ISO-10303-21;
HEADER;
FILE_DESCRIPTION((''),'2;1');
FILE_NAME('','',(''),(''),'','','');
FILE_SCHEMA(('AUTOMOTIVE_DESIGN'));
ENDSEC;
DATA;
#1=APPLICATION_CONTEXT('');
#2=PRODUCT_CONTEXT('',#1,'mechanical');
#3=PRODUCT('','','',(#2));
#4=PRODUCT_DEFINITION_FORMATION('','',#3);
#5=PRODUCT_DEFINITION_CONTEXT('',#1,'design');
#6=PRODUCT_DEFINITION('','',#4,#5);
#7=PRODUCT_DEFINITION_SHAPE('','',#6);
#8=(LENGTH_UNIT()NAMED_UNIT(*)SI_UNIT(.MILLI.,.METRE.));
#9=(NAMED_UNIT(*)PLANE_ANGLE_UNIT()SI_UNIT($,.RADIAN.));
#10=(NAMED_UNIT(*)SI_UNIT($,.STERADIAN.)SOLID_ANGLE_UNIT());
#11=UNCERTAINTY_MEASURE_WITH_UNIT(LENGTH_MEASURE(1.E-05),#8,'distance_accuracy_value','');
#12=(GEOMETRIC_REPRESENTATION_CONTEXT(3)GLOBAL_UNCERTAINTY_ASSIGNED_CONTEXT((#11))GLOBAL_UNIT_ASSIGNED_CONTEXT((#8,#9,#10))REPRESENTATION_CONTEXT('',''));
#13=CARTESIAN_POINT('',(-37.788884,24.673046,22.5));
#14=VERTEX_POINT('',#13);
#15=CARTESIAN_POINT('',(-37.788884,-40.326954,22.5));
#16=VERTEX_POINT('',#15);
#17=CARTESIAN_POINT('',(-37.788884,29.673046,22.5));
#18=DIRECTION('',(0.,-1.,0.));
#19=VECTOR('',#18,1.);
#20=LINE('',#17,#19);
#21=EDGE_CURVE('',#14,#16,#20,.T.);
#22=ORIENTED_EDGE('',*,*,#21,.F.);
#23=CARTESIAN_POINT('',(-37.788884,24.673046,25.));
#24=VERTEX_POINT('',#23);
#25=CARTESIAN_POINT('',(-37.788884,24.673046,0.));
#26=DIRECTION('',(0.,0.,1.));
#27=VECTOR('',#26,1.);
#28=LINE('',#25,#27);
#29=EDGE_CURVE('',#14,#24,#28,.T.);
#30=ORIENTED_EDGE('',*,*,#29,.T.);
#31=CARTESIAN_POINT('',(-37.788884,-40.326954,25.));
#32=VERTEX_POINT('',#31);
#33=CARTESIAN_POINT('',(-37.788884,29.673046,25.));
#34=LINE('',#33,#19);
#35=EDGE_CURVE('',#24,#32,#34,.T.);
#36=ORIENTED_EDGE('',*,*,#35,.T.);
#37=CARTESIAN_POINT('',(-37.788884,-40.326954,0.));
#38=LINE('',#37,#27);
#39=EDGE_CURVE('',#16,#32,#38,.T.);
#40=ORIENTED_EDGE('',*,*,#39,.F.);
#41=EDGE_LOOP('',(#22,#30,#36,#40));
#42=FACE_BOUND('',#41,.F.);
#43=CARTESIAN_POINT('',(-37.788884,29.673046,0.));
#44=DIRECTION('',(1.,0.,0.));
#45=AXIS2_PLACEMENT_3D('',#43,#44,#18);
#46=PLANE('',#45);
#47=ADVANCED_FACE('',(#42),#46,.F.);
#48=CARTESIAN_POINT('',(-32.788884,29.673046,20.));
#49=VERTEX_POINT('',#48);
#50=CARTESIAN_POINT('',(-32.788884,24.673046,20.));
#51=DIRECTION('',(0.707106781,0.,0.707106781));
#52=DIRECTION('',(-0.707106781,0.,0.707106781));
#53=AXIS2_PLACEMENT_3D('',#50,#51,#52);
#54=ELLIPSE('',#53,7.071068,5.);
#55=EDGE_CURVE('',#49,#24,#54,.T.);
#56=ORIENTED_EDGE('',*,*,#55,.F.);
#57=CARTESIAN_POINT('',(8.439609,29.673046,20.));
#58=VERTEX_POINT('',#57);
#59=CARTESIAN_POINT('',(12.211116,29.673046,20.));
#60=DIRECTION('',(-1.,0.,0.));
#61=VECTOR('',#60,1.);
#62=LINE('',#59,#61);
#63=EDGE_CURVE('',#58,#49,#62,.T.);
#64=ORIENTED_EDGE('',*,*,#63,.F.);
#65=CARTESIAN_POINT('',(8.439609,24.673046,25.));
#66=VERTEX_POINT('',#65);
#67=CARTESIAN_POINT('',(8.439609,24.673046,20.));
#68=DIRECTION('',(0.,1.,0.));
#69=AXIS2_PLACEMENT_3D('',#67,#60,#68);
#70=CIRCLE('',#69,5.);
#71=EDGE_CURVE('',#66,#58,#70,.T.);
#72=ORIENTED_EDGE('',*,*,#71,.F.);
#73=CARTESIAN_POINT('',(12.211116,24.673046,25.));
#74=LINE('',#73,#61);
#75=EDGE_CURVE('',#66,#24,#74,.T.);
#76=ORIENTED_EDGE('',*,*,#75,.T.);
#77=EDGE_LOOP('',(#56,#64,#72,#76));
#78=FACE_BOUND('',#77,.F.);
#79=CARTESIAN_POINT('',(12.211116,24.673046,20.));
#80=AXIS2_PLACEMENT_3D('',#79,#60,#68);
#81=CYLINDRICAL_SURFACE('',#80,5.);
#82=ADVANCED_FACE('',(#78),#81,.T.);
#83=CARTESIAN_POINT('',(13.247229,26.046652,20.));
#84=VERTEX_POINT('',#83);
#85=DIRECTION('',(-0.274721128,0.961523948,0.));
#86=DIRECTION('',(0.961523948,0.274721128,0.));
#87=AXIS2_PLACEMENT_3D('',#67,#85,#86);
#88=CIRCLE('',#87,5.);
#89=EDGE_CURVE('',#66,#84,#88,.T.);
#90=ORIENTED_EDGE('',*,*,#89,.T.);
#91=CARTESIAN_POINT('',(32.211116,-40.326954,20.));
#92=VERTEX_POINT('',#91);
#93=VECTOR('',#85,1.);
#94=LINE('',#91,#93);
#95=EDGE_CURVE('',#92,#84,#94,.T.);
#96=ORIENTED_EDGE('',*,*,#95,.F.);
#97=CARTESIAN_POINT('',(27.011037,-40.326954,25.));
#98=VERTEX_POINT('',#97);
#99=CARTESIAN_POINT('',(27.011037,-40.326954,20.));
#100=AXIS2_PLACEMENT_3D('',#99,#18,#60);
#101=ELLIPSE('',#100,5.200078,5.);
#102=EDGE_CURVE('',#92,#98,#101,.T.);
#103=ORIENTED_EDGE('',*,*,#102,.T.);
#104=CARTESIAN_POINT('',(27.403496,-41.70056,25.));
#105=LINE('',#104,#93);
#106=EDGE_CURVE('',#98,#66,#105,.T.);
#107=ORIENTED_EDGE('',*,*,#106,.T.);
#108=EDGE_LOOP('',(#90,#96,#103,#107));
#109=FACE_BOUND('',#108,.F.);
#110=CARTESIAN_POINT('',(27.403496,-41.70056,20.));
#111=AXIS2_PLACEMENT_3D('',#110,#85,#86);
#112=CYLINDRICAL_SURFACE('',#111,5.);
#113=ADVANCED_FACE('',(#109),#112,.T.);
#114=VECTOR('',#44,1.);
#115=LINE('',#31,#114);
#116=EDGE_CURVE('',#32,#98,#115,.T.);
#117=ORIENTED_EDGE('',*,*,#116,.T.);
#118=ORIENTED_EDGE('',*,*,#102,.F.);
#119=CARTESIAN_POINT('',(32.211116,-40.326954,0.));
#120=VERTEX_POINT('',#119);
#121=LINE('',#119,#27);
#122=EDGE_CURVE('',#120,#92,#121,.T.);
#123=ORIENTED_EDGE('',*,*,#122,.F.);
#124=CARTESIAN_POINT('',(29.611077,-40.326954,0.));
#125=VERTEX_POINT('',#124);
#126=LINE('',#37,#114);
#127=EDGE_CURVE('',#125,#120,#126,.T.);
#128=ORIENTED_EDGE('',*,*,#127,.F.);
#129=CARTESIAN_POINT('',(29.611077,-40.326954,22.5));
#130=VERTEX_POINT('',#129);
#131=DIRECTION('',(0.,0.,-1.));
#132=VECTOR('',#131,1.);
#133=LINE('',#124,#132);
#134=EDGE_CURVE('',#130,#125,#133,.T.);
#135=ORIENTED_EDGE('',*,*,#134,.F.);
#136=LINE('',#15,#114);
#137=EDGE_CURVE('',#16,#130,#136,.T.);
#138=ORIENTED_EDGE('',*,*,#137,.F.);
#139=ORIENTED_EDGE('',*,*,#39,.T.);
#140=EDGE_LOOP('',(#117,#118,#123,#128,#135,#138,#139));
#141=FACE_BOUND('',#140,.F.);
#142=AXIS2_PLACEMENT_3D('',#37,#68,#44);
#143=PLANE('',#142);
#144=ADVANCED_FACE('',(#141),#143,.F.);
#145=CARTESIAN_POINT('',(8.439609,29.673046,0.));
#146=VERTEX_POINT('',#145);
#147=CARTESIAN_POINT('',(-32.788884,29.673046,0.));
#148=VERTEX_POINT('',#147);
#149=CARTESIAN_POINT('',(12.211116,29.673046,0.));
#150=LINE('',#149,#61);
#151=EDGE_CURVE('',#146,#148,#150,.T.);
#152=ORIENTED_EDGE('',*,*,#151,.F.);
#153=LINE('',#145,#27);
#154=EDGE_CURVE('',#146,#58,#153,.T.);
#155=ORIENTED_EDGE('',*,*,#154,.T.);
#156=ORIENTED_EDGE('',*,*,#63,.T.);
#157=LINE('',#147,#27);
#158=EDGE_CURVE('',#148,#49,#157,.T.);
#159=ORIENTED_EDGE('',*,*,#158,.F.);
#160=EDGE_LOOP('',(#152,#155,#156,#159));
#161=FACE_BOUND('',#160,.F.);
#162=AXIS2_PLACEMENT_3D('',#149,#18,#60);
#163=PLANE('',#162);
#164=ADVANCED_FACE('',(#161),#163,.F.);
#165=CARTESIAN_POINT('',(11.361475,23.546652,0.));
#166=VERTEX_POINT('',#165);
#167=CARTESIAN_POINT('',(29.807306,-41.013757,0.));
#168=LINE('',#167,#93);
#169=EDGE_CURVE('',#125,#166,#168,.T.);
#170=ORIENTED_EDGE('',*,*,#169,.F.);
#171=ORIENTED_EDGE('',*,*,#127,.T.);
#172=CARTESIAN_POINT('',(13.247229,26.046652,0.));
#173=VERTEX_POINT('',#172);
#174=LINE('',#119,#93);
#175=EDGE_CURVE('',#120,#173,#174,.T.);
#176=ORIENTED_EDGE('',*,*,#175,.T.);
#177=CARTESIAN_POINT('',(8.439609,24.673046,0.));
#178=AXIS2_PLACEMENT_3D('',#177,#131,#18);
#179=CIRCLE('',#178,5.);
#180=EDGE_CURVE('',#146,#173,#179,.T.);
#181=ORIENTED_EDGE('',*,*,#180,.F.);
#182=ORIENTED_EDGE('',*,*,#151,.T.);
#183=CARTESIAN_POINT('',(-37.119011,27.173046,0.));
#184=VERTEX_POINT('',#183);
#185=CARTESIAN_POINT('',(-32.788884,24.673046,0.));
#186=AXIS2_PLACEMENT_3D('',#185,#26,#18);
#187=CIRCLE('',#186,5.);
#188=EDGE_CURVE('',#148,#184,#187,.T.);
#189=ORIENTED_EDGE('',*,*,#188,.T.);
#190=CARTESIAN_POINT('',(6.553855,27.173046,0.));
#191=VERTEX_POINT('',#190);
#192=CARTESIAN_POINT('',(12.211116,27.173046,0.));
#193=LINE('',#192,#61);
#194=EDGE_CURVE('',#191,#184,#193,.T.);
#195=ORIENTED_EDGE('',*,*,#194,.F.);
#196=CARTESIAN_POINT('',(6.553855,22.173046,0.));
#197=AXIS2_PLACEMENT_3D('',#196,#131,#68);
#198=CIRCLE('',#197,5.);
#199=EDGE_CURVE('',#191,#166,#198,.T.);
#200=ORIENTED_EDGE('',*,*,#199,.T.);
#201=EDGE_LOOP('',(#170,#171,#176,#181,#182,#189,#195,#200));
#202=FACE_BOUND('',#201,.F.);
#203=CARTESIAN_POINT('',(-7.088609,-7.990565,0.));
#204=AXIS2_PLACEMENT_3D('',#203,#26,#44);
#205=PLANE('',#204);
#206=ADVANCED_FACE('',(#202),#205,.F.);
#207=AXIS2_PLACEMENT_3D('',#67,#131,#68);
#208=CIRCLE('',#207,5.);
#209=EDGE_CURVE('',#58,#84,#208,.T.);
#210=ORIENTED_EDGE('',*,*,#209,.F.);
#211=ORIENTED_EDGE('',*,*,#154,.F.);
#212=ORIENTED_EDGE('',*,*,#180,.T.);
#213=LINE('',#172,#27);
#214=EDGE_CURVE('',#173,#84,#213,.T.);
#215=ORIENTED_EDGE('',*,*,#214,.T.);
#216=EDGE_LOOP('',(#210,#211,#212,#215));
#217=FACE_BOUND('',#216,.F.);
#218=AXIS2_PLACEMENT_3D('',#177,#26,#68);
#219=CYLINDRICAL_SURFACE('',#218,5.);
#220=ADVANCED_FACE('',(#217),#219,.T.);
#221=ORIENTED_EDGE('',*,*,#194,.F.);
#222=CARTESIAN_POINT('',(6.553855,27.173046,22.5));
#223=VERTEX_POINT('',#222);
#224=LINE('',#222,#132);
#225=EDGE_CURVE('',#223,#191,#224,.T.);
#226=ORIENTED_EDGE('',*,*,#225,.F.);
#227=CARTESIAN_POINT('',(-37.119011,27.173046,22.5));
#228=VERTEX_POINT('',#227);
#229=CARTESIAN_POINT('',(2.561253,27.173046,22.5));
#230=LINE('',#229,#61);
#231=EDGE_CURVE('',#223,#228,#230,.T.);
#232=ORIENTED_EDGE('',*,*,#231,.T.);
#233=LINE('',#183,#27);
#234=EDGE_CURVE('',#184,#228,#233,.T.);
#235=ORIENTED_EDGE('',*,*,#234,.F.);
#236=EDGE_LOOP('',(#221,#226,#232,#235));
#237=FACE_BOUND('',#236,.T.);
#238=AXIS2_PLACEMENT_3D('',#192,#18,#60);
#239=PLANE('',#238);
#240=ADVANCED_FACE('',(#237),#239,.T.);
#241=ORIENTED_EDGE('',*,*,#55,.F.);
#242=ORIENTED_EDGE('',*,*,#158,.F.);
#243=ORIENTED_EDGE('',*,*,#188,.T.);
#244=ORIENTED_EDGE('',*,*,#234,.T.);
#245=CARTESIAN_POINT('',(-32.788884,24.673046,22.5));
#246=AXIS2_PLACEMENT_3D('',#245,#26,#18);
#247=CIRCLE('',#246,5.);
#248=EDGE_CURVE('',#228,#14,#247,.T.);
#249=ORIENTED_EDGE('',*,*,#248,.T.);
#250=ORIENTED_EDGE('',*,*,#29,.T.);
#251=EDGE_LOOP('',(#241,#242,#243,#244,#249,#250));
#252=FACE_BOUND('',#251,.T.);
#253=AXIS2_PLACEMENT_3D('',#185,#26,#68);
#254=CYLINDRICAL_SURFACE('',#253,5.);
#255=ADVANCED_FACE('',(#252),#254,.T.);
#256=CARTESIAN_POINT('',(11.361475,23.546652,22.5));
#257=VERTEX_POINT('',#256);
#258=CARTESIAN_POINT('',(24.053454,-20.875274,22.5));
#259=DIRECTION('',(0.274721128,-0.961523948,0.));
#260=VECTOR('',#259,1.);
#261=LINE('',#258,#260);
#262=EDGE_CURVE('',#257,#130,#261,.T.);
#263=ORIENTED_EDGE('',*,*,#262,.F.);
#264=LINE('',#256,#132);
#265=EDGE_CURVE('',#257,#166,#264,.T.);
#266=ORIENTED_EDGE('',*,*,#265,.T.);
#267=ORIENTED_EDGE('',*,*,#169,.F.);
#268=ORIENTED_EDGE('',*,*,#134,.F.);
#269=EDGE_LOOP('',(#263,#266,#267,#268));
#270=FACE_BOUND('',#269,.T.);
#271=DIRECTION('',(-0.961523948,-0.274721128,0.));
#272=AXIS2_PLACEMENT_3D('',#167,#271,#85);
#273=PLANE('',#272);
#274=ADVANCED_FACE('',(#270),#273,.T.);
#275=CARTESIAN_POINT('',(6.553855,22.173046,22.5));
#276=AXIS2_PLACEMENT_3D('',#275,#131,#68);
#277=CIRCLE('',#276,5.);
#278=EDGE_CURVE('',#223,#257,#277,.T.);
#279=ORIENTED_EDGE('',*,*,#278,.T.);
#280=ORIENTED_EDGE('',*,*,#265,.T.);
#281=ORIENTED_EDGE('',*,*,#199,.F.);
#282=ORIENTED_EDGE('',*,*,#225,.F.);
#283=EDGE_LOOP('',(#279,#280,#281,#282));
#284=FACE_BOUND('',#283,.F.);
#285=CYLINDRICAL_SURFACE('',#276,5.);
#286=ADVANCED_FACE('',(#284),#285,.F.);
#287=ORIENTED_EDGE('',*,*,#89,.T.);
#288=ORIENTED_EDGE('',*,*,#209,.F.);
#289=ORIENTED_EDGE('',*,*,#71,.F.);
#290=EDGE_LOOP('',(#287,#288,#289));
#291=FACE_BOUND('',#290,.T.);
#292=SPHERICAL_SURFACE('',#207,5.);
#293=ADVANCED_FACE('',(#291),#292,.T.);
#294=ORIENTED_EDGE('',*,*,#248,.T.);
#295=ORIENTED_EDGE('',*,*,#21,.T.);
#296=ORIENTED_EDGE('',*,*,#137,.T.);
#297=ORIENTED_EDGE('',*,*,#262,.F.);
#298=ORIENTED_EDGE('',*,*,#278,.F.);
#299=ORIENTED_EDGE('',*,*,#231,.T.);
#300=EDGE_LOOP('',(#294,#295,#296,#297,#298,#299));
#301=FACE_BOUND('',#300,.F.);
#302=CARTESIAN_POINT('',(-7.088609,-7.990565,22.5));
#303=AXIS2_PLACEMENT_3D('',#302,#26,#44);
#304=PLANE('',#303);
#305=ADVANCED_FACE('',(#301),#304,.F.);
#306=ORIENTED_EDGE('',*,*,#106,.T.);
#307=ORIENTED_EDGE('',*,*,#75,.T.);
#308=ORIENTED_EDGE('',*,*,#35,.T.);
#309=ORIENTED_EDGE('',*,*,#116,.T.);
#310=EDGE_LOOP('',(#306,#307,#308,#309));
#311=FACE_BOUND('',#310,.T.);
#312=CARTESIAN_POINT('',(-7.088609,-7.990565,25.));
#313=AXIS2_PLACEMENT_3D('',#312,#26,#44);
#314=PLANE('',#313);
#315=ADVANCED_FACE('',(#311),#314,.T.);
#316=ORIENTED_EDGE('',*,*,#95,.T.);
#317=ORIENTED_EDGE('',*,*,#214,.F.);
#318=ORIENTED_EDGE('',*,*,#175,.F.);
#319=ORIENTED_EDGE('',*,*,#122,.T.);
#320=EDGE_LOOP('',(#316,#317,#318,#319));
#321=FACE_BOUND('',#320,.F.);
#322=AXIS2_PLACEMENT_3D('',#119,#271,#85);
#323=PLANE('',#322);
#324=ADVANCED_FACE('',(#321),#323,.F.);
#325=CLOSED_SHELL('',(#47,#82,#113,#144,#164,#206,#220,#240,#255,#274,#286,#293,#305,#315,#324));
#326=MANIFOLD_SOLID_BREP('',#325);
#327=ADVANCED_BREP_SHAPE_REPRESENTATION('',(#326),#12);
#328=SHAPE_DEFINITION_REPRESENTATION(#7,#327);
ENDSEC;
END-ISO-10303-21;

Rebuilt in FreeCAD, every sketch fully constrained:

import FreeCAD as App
import Part
import Sketcher
from FreeCAD import Vector
Q = App.Units.Quantity


def edges_at(feature, points):
    """Names of the edges that pass closest to the given points."""
    edges = feature.Shape.Edges
    near = lambda p: min(range(len(edges)), key=lambda i: edges[i].distToShape(Part.Vertex(*p))[0])
    return sorted({f"Edge{near(p) + 1}" for p in points})


def faces_at(feature, points):
    """Names of the faces that lie closest to the given points."""
    faces = feature.Shape.Faces
    near = lambda p: min(range(len(faces)), key=lambda i: faces[i].distToShape(Part.Vertex(*p))[0])
    return sorted({f"Face{near(p) + 1}" for p in points})


def add_polygon(sketch, points):
    """Adds a closed chain of lines whose ends are joined by coincident constraints."""
    first, n = sketch.GeometryCount, len(points)
    for a, b in zip(points, points[1:] + points[:1]):
        sketch.addGeometry(Part.LineSegment(App.Vector(*a, 0), App.Vector(*b, 0)), False)
    for i in range(n):
        sketch.addConstraint(Sketcher.Constraint("Coincident", first + i, 2, first + (i + 1) % n, 1))

doc = App.newDocument("Part")
body = doc.addObject("PartDesign::Body", "Body")

# Sketch on XY plane
sketch1 = body.newObject("Sketcher::SketchObject", "Sketch")
sketch1.AttachmentSupport = (doc.getObject("XY_Plane"), [""])
sketch1.MapMode = "FlatFace"
add_polygon(sketch1, [(12, 30), (-38, 30), (-38, -40), (32, -40)])  # lines 0-3
sketch1.addConstraint([
    Sketcher.Constraint("Horizontal", 0),
    Sketcher.Constraint("Vertical", 1),
    Sketcher.Constraint("Horizontal", 2),
    Sketcher.Constraint("Equal", 2, 1),
    Sketcher.Constraint("DistanceX", 0, 2, 0, 1, Q("50 mm")),
    Sketcher.Constraint("DistanceX", 2, 1, 2, 2, Q("70 mm")),
    Sketcher.Constraint("DistanceX", 0, 2, -1, 1, Q("37.788884 mm")),
    Sketcher.Constraint("DistanceY", -1, 1, 0, 2, Q("29.673046 mm")),
])
pad1 = body.newObject("PartDesign::Pad", "Pad")
pad1.Profile = sketch1
pad1.Length = 25
doc.recompute()

thickness = body.newObject("PartDesign::Thickness", "Thickness")
thickness.Base = (pad1, faces_at(pad1, [(-37.789, -5.327, 12.5), (-2.789, -5.327, 0), (-2.789, -40.327, 12.5)]))
thickness.Value = 2.5
thickness.Reversed = True
thickness.Join = "Arc"
doc.recompute()

fillet = body.newObject("PartDesign::Fillet", "Fillet")
fillet.Base = (thickness, edges_at(thickness, [
    (12.211, 29.673, 12.5),
    (10.325, 27.173, 11.25),
    (-12.789, 29.673, 25),
    (22.211, -5.327, 25),
    (-37.789, 29.673, 12.5),
]))
fillet.Radius = 5

doc.recompute()
